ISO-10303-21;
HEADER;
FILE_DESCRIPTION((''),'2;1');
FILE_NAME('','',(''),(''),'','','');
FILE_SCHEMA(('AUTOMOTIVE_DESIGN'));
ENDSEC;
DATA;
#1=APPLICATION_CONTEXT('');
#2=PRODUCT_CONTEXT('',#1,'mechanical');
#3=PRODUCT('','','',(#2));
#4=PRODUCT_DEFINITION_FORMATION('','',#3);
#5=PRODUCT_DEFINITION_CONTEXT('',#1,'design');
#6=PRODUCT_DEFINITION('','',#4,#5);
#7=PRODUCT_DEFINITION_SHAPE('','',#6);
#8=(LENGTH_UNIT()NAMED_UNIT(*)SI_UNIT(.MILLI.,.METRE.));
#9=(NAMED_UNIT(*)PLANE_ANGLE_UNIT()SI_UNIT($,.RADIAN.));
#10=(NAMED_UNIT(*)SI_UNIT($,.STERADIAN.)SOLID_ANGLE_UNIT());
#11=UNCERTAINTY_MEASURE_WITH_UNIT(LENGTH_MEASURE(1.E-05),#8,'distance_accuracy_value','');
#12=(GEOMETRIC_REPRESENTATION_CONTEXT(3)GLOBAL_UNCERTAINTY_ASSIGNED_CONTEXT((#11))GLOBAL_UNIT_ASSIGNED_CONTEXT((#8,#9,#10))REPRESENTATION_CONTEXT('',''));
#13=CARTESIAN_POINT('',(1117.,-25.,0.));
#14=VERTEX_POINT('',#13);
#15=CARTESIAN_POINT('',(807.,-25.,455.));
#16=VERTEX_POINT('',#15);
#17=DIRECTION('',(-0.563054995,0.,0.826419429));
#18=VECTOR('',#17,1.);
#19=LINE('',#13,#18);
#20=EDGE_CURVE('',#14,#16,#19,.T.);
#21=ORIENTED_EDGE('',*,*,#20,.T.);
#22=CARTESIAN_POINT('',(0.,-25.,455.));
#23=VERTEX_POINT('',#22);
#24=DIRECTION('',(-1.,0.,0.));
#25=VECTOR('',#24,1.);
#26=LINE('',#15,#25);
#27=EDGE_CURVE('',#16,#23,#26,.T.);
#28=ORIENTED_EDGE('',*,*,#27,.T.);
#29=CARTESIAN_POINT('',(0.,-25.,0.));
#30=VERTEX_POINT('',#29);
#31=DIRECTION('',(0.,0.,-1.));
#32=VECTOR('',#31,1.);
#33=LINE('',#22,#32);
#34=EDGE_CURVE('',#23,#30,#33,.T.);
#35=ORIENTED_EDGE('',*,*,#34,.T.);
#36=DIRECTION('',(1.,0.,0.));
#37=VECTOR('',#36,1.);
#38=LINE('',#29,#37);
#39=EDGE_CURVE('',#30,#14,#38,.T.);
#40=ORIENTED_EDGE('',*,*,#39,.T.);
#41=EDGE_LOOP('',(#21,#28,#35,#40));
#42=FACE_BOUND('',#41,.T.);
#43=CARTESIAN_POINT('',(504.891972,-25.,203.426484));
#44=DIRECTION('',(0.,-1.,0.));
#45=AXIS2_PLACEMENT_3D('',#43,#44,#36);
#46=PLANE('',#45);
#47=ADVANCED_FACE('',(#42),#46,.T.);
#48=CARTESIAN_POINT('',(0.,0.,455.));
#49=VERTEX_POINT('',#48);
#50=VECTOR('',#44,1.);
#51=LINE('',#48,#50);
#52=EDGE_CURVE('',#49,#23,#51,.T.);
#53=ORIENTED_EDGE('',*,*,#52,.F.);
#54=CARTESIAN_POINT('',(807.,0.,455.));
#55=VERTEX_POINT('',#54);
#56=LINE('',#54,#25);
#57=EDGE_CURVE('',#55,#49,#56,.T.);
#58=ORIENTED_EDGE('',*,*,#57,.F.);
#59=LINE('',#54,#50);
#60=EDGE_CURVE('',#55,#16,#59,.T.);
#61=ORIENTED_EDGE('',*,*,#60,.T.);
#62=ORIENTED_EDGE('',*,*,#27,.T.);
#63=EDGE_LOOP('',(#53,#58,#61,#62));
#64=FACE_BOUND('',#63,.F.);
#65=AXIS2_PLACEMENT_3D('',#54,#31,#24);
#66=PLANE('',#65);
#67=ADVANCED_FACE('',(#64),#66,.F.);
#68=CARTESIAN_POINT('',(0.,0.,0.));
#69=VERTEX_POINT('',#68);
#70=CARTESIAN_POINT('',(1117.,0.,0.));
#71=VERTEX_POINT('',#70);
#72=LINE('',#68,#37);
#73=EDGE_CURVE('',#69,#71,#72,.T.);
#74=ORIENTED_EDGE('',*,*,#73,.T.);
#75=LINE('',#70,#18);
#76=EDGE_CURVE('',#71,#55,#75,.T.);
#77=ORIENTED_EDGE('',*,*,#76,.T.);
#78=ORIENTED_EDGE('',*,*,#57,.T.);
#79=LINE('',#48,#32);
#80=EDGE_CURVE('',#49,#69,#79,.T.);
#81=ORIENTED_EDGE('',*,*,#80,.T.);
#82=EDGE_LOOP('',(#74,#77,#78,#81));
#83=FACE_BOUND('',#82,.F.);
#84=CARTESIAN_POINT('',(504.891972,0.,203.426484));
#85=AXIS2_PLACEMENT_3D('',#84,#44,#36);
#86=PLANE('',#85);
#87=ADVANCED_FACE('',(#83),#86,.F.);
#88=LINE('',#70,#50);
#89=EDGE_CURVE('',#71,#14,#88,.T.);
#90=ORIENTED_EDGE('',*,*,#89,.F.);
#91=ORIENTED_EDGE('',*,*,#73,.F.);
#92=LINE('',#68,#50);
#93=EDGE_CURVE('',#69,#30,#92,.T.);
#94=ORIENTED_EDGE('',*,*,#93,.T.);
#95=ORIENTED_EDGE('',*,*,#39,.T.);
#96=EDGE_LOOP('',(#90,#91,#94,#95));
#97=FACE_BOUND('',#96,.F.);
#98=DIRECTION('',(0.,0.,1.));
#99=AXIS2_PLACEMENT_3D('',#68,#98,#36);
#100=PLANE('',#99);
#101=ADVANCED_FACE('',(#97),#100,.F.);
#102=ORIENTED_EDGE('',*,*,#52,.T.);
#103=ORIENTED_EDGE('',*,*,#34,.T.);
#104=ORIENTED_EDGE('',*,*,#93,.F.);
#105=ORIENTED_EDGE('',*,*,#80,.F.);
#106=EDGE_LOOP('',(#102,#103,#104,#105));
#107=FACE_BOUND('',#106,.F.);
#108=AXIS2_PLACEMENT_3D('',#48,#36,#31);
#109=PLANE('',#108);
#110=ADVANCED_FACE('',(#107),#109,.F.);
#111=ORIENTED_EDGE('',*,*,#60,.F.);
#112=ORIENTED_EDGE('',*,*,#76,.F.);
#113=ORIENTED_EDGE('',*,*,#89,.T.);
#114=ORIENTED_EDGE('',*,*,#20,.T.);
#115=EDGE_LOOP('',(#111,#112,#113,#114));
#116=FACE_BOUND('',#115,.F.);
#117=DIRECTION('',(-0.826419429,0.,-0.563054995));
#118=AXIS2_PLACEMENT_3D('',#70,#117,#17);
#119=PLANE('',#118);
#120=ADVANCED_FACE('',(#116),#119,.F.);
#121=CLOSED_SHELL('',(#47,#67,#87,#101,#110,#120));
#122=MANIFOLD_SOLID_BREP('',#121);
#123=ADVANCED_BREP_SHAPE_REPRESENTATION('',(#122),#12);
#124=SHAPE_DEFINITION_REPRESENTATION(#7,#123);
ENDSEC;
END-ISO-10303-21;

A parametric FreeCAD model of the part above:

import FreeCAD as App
import Part
import Sketcher

V = App.Vector

doc = App.newDocument("Part")
params = doc.addObject("Spreadsheet::Sheet", "Params")
for row, (alias, value) in enumerate([
    ("sketch1_width", "1117 mm"),
    ("sketch1_width2", "807 mm"),
    ("sketch1_height", "455 mm"),
    ("pad1_length", "25 mm"),
], start=1):
    params.set(f"A{row}", alias)
    params.set(f"B{row}", "=" + value)
    params.setAlias(f"B{row}", alias)

body = doc.addObject("PartDesign::Body", "Body")

# Sketch on XZ plane
sketch1 = doc.addObject("Sketcher::SketchObject", "Sketch")
body.addObject(sketch1)
sketch1.AttachmentSupport = (doc.XZ_Plane, [""])
sketch1.MapMode = "FlatFace"
sketch1.addGeometry([
    Part.LineSegment(V(0, 455, 0), V(0, 0, 0)),
    Part.LineSegment(V(0, 0, 0), V(1117, 0, 0)),
    Part.LineSegment(V(1117, 0, 0), V(807, 455, 0)),
    Part.LineSegment(V(807, 455, 0), V(0, 455, 0)),
], False)
sketch1.addConstraint([
    Sketcher.Constraint("Coincident", 0, 2, 1, 1),
    Sketcher.Constraint("Coincident", 1, 2, 2, 1),
    Sketcher.Constraint("Coincident", 2, 2, 3, 1),
    Sketcher.Constraint("Coincident", 3, 2, 0, 1),
    Sketcher.Constraint("Vertical", 0),
    Sketcher.Constraint("Horizontal", 1),
    Sketcher.Constraint("Horizontal", 3),
    Sketcher.Constraint("Coincident", 0, 2, -1, 1),
    Sketcher.Constraint("DistanceX", 1, 1, 1, 2, 1117.0),
    Sketcher.Constraint("DistanceX", 3, 2, 3, 1, 807.0),
    Sketcher.Constraint("DistanceY", 0, 2, 0, 1, 455.0),
])
sketch1.setExpression("Constraints[8]", "Params.sketch1_width")
sketch1.setExpression("Constraints[9]", "Params.sketch1_width2")
sketch1.setExpression("Constraints[10]", "Params.sketch1_height")
pad1 = doc.addObject("PartDesign::Pad", "Pad")
body.addObject(pad1)
pad1.Profile = sketch1
pad1.setExpression("Length", "Params.pad1_length")

doc.recompute()
